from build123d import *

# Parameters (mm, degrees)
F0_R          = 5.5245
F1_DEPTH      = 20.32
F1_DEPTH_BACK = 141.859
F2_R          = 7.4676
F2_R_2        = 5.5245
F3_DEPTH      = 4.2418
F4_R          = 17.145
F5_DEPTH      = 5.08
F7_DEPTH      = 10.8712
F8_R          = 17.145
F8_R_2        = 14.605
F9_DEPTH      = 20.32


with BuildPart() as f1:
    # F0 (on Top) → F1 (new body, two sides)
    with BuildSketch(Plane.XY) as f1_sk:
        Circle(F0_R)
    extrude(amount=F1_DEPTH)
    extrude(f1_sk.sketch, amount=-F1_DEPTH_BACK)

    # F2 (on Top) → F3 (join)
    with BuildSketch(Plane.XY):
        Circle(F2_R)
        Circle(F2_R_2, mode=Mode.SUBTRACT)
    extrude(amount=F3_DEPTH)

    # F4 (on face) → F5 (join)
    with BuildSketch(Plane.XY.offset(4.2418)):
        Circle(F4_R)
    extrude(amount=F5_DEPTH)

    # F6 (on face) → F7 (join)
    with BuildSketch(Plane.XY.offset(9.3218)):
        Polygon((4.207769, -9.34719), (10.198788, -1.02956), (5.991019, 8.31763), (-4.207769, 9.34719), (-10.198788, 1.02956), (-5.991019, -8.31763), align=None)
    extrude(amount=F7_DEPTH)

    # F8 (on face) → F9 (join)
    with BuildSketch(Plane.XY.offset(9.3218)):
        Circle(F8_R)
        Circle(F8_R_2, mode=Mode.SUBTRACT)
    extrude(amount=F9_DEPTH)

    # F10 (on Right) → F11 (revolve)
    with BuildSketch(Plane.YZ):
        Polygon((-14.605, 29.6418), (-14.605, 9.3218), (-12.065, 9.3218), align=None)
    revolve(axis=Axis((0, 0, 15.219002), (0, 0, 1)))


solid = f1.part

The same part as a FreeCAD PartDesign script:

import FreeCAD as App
import Part
import Sketcher

V = App.Vector
Q = App.Units.Quantity


def add_polygon(sketch, points):
    """Adds a closed chain of lines whose ends are joined by coincident constraints."""
    first, n = sketch.GeometryCount, len(points)
    for a, b in zip(points, points[1:] + points[:1]):
        sketch.addGeometry(Part.LineSegment(App.Vector(*a, 0), App.Vector(*b, 0)), False)
    for i in range(n):
        sketch.addConstraint(Sketcher.Constraint("Coincident", first + i, 2, first + (i + 1) % n, 1))

doc = App.newDocument("Part")
body = doc.addObject("PartDesign::Body", "Body")

sketch1 = doc.addObject("Sketcher::SketchObject", "Sketch")
body.addObject(sketch1)
sketch1.AttachmentSupport = (doc.XY_Plane, [""])
sketch1.MapMode = "FlatFace"
sketch1.addGeometry(Part.Circle(V(0, 0, 0), V(0, 0, 1), 6), False)
sketch1.addConstraint([
    Sketcher.Constraint("Coincident", 0, 3, -1, 1),
    Sketcher.Constraint("Diameter", 0, Q("0.435 in")),
])
pad1 = doc.addObject("PartDesign::Pad", "Pad")
body.addObject(pad1)
pad1.Profile = sketch1
pad1.Type = "TwoLengths"
pad1.Length = Q("0.8 in")
pad1.Length2 = Q("5.585 in")

sketch2 = doc.addObject("Sketcher::SketchObject", "Sketch001")
body.addObject(sketch2)
sketch2.AttachmentSupport = (doc.XY_Plane, [""])
sketch2.MapMode = "FlatFace"
sketch2.addGeometry([
    Part.Circle(V(0, 0, 0), V(0, 0, 1), 7),
    Part.Circle(V(0, 0, 0), V(0, 0, 1), 6),
], False)
sketch2.addConstraint([
    Sketcher.Constraint("Coincident", 0, 3, -1, 1),
    Sketcher.Constraint("Coincident", 1, 3, -1, 1),
    Sketcher.Constraint("Diameter", 0, Q("0.588 in")),
    Sketcher.Constraint("Diameter", 1, Q("0.435 in")),
])
pad2 = doc.addObject("PartDesign::Pad", "Pad001")
body.addObject(pad2)
pad2.Profile = sketch2
pad2.Length = Q("0.167 in")

sketch3 = doc.addObject("Sketcher::SketchObject", "Sketch002")
body.addObject(sketch3)
sketch3.AttachmentSupport = (doc.XY_Plane, [""])
sketch3.MapMode = "FlatFace"
sketch3.AttachmentOffset = App.Placement(V(0, 0, 0.167 * 25.4), App.Rotation())
sketch3.addGeometry(Part.Circle(V(0, 0, 0), V(0, 0, 1), 17), False)
sketch3.addConstraint([
    Sketcher.Constraint("Coincident", 0, 3, -1, 1),
    Sketcher.Constraint("Diameter", 0, Q("1.35 in")),
])
pad3 = doc.addObject("PartDesign::Pad", "Pad002")
body.addObject(pad3)
pad3.Profile = sketch3
pad3.Length = Q("0.2 in")

sketch4 = doc.addObject("Sketcher::SketchObject", "Sketch003")
body.addObject(sketch4)
sketch4.AttachmentSupport = (doc.XY_Plane, [""])
sketch4.MapMode = "FlatFace"
sketch4.AttachmentOffset = App.Placement(V(0, 0, 0.367 * 25.4), App.Rotation())
add_polygon(sketch4, [(4, -9), (10, -1), (6, 8), (-4, 9), (-10, 1), (-6, -8)])
sketch4.addConstraint([
    Sketcher.Constraint("Symmetric", 0, 2, 3, 2, -1, 1),
    Sketcher.Constraint("Symmetric", 1, 2, 4, 2, -1, 1),
    Sketcher.Constraint("Symmetric", 2, 2, 5, 2, -1, 1),
    Sketcher.Constraint("Equal", 0, 1),
    Sketcher.Constraint("Equal", 1, 2),
    Sketcher.Constraint("DistanceY", 0, 2, -1, 1, Q("1.02956 mm")),
    Sketcher.Constraint("DistanceX", -1, 1, 1, 2, Q("5.991019 mm")),
    Sketcher.Constraint("DistanceY", -1, 1, 1, 2, Q("8.31763 mm")),
    Sketcher.Constraint("DistanceX", 2, 2, -1, 1, Q("4.207769 mm")),
])
pad4 = doc.addObject("PartDesign::Pad", "Pad003")
body.addObject(pad4)
pad4.Profile = sketch4
pad4.Length = Q("0.428 in")

sketch5 = doc.addObject("Sketcher::SketchObject", "Sketch004")
body.addObject(sketch5)
sketch5.AttachmentSupport = (doc.XY_Plane, [""])
sketch5.MapMode = "FlatFace"
sketch5.AttachmentOffset = App.Placement(V(0, 0, 0.367 * 25.4), App.Rotation())
sketch5.addGeometry([
    Part.Circle(V(0, 0, 0), V(0, 0, 1), 17),
    Part.Circle(V(0, 0, 0), V(0, 0, 1), 15),
], False)
sketch5.addConstraint([
    Sketcher.Constraint("Coincident", 0, 3, -1, 1),
    Sketcher.Constraint("Coincident", 1, 3, -1, 1),
    Sketcher.Constraint("Diameter", 0, Q("1.35 in")),
    Sketcher.Constraint("Diameter", 1, Q("1.15 in")),
])
pad5 = doc.addObject("PartDesign::Pad", "Pad004")
body.addObject(pad5)
pad5.Profile = sketch5
pad5.Length = Q("0.8 in")

sketch6 = doc.addObject("Sketcher::SketchObject", "Sketch005")
body.addObject(sketch6)
sketch6.AttachmentSupport = (doc.YZ_Plane, [""])
sketch6.MapMode = "FlatFace"
add_polygon(sketch6, [(-14.6, 29.6), (-14.6, 9.3), (-12.1, 9.3)])
sketch6.addConstraint([
    Sketcher.Constraint("Vertical", 0),
    Sketcher.Constraint("Horizontal", 1),
    Sketcher.Constraint("DistanceX", 1, 1, 1, 2, Q("0.1 in")),
    Sketcher.Constraint("DistanceY", 0, 2, 0, 1, Q("0.8 in")),
    Sketcher.Constraint("DistanceX", 0, 2, -1, 1, Q("0.575 in")),
    Sketcher.Constraint("DistanceY", -1, 1, 0, 2, Q("0.367 in")),
])
revolution = doc.addObject("PartDesign::Revolution", "Revolution")
body.addObject(revolution)
revolution.Profile = sketch6
revolution.ReferenceAxis = (sketch6, ["V_Axis"])
revolution.Angle = 360

doc.recompute()
